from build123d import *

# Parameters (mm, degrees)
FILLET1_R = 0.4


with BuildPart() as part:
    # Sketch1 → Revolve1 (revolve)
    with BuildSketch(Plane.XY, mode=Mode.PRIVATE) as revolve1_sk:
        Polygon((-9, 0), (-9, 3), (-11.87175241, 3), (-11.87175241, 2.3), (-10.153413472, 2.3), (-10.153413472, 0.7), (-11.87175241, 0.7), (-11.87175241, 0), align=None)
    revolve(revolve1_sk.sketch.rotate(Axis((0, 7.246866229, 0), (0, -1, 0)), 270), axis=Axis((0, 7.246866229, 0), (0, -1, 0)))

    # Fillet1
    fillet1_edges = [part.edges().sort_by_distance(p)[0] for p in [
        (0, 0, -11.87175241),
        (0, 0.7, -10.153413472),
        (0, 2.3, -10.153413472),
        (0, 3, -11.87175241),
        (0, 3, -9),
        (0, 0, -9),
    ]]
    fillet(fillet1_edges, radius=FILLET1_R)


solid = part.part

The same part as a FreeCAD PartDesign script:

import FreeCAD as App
import Part
import Sketcher
Q = App.Units.Quantity


def edges_at(feature, points):
    """Names of the edges that pass closest to the given points."""
    edges = feature.Shape.Edges
    near = lambda p: min(range(len(edges)), key=lambda i: edges[i].distToShape(Part.Vertex(*p))[0])
    return sorted({f"Edge{near(p) + 1}" for p in points})


def add_polygon(sketch, points):
    """Adds a closed chain of lines whose ends are joined by coincident constraints."""
    first, n = sketch.GeometryCount, len(points)
    for a, b in zip(points, points[1:] + points[:1]):
        sketch.addGeometry(Part.LineSegment(App.Vector(*a, 0), App.Vector(*b, 0)), False)
    for i in range(n):
        sketch.addConstraint(Sketcher.Constraint("Coincident", first + i, 2, first + (i + 1) % n, 1))

doc = App.newDocument("Part")
params = doc.addObject("Spreadsheet::Sheet", "Params")
for row, (alias, value) in enumerate([
    ("sketch1_height", "3 mm"),
    ("sketch1_height2", "0.7 mm"),
    ("revolution_angle", "360 deg"),
    ("fillet_radius", "0.4 mm"),
], start=1):
    params.set(f"A{row}", alias)
    params.set(f"B{row}", "=" + value)
    params.setAlias(f"B{row}", alias)

body = doc.addObject("PartDesign::Body", "Body")

# Sketch on XY plane
sketch1 = body.newObject("Sketcher::SketchObject", "Sketch")
sketch1.AttachmentSupport = (doc.getObject("XY_Plane"), [""])
sketch1.MapMode = "FlatFace"
add_polygon(sketch1, [(-9, 0), (-9, 3), (-11.871752, 3), (-11.871752, 2.3), (-10.153413, 2.3), (-10.153413, 0.7), (-11.871752, 0.7), (-11.871752, 0)])  # lines 0-7
sketch1.addConstraint([
    Sketcher.Constraint("Vertical", 0),
    Sketcher.Constraint("Horizontal", 1),
    Sketcher.Constraint("Vertical", 2),
    Sketcher.Constraint("Horizontal", 3),
    Sketcher.Constraint("Vertical", 4),
    Sketcher.Constraint("Horizontal", 5),
    Sketcher.Constraint("Vertical", 6),
    Sketcher.Constraint("Horizontal", 7),
    Sketcher.Constraint("PointOnObject", 6, 2, -1),
    Sketcher.Constraint("Vertical", 2, 2, 5, 2),
    Sketcher.Constraint("Equal", 2, 6),
    Sketcher.Constraint("DistanceY", 0, 1, 0, 2, Q("3 mm")),
    Sketcher.Constraint("DistanceY", 2, 2, 2, 1, Q("0.7 mm")),
    Sketcher.Constraint("DistanceX", 0, 2, -1, 1, Q("9 mm")),
    Sketcher.Constraint("DistanceX", 3, 1, 3, 2, Q("1.718339 mm")),
    Sketcher.Constraint("DistanceX", 1, 2, 1, 1, Q("2.871752 mm")),
])
sketch1.setExpression("Constraints[19]", "Params.sketch1_height")
sketch1.setExpression("Constraints[20]", "Params.sketch1_height2")
revolution = body.newObject("PartDesign::Revolution", "Revolution")
revolution.Profile = sketch1
revolution.ReferenceAxis = (sketch1, ["V_Axis"])
revolution.setExpression("Angle", "Params.revolution_angle")
doc.recompute()

fillet = body.newObject("PartDesign::Fillet", "Fillet")
fillet.Base = (revolution, edges_at(revolution, [
    (0, 0, -11.872),
    (0, 0.7, -10.153),
    (0, 2.3, -10.153),
    (0, 3, -11.872),
    (0, 3, -9),
    (0, 0, -9),
]))
fillet.setExpression("Radius", "Params.fillet_radius")

doc.recompute()
